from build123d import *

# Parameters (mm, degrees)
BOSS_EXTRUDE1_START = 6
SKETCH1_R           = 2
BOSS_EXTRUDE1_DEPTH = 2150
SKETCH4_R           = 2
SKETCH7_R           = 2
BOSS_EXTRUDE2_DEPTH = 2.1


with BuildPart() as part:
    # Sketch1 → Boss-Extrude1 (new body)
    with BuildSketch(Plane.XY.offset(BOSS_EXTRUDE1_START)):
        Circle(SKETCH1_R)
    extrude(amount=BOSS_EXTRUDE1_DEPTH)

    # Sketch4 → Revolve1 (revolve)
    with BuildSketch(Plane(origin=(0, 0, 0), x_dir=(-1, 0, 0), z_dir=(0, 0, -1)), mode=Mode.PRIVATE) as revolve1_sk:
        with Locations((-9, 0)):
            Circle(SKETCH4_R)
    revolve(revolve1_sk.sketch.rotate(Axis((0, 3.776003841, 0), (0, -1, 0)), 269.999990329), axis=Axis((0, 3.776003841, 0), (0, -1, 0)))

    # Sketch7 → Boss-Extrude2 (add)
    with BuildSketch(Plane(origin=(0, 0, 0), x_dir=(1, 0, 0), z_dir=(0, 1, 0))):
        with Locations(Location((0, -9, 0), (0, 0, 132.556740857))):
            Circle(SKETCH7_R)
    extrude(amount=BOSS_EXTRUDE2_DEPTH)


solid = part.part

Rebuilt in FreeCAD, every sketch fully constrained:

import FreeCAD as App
import Part
import Sketcher
Q = App.Units.Quantity

doc = App.newDocument("Part")
body = doc.addObject("PartDesign::Body", "Body")

# Sketch on XY plane
sketch1 = body.newObject("Sketcher::SketchObject", "Sketch")
sketch1.AttachmentSupport = (doc.getObject("XY_Plane"), [""])
sketch1.MapMode = "FlatFace"
sketch1.AttachmentOffset = App.Placement(App.Vector(0, 0, 6), App.Rotation())
sketch1.addGeometry(Part.Circle(App.Vector(0, 0, 0), App.Vector(0, 0, 1), 2), False)
sketch1.addConstraint(Sketcher.Constraint("Coincident", 0, 3, -1, 1))
sketch1.addConstraint(Sketcher.Constraint("Diameter", 0, Q("4 mm")))
pad1 = body.newObject("PartDesign::Pad", "Pad")
pad1.Profile = sketch1
pad1.Length = 2150

# Sketch on XY plane
sketch2 = body.newObject("Sketcher::SketchObject", "Sketch001")
sketch2.AttachmentSupport = (doc.getObject("XY_Plane"), [""])
sketch2.MapMode = "FlatFace"
sketch2.addGeometry(Part.Circle(App.Vector(9, 0, 0), App.Vector(0, 0, 1), 2), False)
sketch2.addConstraint(Sketcher.Constraint("PointOnObject", 0, 3, -1))
sketch2.addConstraint(Sketcher.Constraint("Diameter", 0, Q("4 mm")))
sketch2.addConstraint(Sketcher.Constraint("DistanceX", -1, 1, 0, 3, Q("9 mm")))
revolution = body.newObject("PartDesign::Revolution", "Revolution")
revolution.Profile = sketch2
revolution.ReferenceAxis = (sketch2, ["V_Axis"])
revolution.Angle = 360

# Sketch on XZ plane
sketch3 = body.newObject("Sketcher::SketchObject", "Sketch002")
sketch3.AttachmentSupport = (doc.getObject("XZ_Plane"), [""])
sketch3.MapMode = "FlatFace"
sketch3.addGeometry(Part.Circle(App.Vector(0, 9, 0), App.Vector(0, 0, 1), 2), False)
sketch3.addConstraint(Sketcher.Constraint("PointOnObject", 0, 3, -2))
sketch3.addConstraint(Sketcher.Constraint("Diameter", 0, Q("4 mm")))
sketch3.addConstraint(Sketcher.Constraint("DistanceY", -1, 1, 0, 3, Q("9 mm")))
pad2 = body.newObject("PartDesign::Pad", "Pad001")
pad2.Profile = sketch3
pad2.Length = 2.1
pad2.Reversed = True

doc.recompute()
